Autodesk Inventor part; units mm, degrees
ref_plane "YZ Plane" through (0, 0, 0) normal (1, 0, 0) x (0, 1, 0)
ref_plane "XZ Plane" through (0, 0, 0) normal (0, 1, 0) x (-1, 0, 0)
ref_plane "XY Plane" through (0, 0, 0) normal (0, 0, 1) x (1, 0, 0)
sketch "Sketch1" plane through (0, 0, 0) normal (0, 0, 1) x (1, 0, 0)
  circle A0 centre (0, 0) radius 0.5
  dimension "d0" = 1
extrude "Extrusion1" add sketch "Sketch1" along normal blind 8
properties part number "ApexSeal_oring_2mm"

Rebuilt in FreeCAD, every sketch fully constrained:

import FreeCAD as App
import Part
import Sketcher

V = App.Vector
Q = App.Units.Quantity

doc = App.newDocument("Part")
body = doc.addObject("PartDesign::Body", "Body")

# Sketch on XY plane
sketch1 = body.newObject("Sketcher::SketchObject", "Sketch")
sketch1.AttachmentSupport = (doc.getObject("XY_Plane"), [""])
sketch1.MapMode = "FlatFace"
sketch1.addGeometry(Part.Circle(V(0, 0, 0), V(0, 0, 1), 0.5), False)
sketch1.addConstraint(Sketcher.Constraint("Coincident", 0, 3, -1, 1))
sketch1.addConstraint(Sketcher.Constraint("Diameter", 0, Q("1 mm")))
pad1 = body.newObject("PartDesign::Pad", "Pad")
pad1.Profile = sketch1
pad1.Length = 8

doc.recompute()
